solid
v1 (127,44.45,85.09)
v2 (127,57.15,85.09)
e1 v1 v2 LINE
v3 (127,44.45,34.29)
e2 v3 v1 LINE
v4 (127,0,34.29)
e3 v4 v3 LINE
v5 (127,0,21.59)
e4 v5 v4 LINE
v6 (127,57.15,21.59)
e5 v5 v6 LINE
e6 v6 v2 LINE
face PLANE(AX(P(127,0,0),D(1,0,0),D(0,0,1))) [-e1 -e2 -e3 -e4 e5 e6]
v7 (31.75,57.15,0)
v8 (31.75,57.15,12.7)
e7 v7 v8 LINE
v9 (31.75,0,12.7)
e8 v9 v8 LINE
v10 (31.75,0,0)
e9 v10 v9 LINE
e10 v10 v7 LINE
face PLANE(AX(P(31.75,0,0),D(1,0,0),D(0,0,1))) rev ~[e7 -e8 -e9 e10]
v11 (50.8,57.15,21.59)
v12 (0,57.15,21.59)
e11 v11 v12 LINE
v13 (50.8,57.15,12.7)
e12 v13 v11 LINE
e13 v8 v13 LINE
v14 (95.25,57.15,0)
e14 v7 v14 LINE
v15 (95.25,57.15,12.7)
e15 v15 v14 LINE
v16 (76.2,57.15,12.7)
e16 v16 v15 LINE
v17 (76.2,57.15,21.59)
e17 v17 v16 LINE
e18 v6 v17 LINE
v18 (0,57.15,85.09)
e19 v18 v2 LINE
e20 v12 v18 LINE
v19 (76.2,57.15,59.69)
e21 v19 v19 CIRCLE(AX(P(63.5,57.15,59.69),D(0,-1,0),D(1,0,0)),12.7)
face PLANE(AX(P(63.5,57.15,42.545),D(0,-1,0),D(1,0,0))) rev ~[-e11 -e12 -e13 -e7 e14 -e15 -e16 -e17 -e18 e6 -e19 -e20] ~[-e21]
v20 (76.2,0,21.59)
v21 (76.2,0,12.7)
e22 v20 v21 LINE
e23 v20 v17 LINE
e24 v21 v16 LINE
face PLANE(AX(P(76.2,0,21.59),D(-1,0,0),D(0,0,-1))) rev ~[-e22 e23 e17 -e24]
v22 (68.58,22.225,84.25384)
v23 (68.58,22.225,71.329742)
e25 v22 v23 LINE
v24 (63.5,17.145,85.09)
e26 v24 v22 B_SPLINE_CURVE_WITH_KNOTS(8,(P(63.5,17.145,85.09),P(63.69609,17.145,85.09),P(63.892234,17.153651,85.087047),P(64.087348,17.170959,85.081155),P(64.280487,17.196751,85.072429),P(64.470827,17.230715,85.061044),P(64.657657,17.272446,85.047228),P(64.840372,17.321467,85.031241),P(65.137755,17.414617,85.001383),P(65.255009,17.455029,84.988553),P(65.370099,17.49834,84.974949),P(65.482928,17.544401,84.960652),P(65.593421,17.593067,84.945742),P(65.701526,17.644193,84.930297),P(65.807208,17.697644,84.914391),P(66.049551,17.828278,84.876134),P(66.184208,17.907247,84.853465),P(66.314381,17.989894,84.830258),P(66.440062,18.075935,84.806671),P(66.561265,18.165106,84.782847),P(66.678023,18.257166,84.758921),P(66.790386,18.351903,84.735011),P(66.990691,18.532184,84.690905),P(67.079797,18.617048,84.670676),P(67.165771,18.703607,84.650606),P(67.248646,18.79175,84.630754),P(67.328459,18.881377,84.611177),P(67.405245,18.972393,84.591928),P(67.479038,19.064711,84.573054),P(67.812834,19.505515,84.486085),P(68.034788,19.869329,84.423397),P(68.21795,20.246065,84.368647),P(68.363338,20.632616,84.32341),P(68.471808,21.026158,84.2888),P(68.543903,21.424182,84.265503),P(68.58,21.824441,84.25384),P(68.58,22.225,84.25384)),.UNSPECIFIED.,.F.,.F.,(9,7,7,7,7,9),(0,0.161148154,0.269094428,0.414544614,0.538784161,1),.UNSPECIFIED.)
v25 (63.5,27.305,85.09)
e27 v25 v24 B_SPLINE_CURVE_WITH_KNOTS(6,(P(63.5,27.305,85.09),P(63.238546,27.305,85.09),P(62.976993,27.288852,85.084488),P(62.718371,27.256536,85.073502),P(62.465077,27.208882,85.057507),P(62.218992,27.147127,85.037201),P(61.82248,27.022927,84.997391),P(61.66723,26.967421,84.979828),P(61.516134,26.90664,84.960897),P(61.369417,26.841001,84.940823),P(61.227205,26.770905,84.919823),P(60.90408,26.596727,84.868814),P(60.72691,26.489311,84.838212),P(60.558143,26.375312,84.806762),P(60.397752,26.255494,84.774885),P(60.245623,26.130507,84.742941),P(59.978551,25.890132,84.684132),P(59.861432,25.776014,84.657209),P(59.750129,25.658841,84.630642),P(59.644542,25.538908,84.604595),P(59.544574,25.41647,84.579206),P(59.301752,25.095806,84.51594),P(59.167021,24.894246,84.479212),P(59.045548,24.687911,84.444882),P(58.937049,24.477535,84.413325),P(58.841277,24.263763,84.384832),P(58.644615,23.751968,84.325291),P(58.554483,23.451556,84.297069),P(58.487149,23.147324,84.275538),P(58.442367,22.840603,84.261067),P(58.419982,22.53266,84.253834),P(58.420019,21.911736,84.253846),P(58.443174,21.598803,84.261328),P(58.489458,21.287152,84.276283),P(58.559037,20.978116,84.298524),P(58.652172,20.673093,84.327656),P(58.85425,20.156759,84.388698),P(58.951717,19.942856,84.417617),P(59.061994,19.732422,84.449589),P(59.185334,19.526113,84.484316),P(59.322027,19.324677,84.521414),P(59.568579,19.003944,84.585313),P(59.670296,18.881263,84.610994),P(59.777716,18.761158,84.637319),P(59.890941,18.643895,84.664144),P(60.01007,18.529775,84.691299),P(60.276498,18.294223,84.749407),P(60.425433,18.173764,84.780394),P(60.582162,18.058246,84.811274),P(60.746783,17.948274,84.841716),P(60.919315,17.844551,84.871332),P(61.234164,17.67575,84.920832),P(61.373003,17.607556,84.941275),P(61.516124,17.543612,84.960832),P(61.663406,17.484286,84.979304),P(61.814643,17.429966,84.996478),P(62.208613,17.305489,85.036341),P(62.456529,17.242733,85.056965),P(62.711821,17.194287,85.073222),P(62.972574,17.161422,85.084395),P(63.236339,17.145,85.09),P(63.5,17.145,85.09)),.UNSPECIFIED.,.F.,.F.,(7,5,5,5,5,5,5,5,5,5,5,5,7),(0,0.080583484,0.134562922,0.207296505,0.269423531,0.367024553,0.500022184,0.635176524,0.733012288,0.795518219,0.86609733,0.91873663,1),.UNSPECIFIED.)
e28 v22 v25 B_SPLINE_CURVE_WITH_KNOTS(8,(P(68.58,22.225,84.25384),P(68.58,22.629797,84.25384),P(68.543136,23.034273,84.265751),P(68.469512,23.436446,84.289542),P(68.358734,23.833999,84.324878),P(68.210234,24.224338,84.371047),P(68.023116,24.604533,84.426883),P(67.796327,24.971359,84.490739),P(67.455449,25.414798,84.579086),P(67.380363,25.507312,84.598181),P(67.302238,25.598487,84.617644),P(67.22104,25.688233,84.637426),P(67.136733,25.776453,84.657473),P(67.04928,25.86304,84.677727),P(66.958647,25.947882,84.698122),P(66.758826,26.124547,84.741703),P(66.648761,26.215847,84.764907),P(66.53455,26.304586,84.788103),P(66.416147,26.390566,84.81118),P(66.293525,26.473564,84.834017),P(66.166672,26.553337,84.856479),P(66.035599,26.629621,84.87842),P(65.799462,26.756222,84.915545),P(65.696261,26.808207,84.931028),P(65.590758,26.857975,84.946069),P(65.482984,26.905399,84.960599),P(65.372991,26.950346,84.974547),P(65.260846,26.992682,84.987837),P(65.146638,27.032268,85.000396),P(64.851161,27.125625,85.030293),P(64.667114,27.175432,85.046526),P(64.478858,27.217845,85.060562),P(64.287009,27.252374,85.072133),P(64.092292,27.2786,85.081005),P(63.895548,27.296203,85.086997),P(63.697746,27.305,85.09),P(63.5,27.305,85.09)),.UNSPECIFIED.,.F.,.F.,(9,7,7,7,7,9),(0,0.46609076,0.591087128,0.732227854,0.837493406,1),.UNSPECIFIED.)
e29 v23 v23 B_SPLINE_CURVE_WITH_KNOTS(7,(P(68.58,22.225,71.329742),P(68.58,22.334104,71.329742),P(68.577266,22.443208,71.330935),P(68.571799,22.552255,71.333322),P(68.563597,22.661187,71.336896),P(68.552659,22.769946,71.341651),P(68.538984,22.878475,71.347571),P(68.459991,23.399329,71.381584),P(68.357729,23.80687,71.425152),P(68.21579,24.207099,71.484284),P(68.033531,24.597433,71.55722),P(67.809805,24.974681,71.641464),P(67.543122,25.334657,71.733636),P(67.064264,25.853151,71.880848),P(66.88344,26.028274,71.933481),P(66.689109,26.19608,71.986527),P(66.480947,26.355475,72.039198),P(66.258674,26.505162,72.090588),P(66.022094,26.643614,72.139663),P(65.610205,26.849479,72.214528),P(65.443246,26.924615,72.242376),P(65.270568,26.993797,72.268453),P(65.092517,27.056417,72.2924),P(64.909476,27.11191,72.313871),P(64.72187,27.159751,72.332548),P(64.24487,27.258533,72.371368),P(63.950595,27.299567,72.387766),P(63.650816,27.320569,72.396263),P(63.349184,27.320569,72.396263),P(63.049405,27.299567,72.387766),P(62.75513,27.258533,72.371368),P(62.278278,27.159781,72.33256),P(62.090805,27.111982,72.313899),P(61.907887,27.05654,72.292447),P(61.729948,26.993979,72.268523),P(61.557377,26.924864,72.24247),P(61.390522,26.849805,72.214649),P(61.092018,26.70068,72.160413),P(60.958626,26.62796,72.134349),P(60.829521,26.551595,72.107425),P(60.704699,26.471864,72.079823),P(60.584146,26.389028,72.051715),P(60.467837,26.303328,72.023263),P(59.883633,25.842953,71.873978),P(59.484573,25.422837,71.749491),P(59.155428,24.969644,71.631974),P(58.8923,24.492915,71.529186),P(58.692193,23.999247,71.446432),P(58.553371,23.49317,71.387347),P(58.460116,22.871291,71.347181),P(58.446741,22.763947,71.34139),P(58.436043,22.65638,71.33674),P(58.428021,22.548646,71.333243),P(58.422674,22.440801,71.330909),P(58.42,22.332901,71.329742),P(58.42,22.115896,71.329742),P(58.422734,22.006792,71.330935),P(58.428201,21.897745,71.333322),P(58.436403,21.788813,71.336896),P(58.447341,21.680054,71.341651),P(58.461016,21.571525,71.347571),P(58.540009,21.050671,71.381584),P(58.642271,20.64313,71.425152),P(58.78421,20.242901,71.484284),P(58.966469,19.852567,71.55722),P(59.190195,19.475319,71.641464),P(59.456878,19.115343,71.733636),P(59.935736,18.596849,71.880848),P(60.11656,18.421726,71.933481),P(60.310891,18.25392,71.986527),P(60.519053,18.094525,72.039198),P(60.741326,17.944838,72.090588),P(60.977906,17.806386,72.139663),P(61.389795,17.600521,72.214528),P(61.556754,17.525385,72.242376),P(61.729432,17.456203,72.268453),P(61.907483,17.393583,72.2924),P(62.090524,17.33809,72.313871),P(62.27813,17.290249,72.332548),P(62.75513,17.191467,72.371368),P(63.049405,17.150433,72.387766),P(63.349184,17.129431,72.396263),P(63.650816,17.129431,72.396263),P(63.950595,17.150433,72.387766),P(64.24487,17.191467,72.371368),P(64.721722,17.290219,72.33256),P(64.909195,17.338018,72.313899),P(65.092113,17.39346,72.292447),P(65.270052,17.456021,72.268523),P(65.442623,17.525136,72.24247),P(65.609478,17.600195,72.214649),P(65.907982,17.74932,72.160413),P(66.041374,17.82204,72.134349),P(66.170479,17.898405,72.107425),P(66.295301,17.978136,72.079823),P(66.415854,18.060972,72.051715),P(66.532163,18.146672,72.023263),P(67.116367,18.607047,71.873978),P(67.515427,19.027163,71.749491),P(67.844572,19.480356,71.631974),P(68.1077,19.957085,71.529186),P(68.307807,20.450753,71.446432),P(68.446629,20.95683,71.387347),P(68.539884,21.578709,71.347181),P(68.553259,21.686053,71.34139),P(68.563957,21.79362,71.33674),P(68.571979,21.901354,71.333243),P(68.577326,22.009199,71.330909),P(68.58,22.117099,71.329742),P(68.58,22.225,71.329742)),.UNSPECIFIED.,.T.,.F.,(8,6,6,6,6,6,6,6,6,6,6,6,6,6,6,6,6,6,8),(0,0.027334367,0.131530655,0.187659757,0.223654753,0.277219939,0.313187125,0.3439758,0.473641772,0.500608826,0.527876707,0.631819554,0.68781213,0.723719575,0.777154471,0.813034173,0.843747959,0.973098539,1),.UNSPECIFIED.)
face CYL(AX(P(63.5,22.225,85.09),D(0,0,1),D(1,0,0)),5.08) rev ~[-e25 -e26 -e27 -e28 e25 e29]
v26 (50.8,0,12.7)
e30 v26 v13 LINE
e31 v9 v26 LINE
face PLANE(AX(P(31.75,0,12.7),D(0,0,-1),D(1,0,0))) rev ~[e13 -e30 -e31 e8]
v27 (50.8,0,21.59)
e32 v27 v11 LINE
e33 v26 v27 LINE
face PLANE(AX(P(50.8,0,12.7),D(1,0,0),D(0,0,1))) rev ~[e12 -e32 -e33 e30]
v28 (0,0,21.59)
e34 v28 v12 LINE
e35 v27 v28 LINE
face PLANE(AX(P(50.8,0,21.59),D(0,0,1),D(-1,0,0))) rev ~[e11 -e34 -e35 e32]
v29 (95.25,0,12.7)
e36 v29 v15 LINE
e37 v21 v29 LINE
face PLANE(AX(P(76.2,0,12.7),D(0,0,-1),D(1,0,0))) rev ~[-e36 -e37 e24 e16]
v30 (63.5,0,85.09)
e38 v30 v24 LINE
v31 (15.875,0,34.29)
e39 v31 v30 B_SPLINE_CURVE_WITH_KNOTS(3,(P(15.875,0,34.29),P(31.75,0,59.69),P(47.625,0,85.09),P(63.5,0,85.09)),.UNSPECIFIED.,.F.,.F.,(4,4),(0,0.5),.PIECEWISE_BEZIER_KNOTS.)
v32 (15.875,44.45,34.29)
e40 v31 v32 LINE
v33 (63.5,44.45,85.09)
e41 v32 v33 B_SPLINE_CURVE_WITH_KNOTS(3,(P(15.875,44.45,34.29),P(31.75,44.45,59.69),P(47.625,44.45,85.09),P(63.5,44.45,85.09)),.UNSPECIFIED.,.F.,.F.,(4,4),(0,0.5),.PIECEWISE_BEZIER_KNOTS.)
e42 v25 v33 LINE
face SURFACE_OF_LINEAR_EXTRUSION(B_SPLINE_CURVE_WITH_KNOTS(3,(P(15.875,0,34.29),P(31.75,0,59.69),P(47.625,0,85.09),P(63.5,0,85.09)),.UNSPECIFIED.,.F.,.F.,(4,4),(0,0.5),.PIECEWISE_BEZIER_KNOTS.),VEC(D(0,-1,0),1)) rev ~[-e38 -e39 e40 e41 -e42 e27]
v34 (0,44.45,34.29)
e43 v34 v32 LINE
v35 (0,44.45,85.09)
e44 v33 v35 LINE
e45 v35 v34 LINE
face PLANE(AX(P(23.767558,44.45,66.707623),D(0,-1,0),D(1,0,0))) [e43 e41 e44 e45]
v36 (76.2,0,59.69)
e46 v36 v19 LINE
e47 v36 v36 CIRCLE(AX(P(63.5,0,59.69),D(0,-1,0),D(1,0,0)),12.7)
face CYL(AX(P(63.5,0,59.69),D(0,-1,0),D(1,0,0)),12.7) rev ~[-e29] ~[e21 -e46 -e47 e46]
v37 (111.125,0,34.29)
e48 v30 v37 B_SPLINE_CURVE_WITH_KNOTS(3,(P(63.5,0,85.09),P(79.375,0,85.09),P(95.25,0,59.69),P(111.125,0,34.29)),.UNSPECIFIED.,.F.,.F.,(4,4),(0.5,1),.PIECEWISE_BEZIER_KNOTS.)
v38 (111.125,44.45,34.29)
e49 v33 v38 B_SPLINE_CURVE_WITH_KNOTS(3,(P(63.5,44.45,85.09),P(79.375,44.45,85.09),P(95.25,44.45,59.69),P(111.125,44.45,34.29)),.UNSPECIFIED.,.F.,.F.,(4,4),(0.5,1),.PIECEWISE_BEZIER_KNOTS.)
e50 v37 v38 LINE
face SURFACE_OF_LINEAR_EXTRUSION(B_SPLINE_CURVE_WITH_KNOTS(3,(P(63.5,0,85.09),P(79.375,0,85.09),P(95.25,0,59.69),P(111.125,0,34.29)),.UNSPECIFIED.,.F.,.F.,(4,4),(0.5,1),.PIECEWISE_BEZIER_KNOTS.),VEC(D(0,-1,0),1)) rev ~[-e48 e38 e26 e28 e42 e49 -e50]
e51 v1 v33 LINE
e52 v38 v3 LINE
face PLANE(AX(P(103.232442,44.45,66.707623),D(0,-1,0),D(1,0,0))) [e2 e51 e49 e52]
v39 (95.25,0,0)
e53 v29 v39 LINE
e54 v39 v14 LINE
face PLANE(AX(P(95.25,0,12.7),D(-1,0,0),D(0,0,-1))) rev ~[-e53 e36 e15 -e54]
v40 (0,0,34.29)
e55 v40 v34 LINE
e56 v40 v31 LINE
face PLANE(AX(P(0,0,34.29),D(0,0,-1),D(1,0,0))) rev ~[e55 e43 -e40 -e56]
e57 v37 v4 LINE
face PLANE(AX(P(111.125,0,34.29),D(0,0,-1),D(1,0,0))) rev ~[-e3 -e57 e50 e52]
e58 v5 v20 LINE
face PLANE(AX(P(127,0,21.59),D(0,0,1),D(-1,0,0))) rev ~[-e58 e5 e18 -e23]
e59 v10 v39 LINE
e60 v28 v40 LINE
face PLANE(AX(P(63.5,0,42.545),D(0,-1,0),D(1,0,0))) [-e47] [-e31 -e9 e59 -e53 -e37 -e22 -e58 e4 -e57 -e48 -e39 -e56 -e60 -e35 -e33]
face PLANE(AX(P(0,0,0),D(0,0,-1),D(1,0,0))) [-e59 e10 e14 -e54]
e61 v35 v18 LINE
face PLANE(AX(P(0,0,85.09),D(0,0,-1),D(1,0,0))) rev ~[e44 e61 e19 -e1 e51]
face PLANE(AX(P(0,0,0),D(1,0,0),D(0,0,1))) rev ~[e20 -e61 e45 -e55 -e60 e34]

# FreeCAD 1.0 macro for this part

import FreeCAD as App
import Part
import Sketcher
from FreeCAD import Vector
Q = App.Units.Quantity

doc = App.newDocument("Part")
params = doc.addObject("Spreadsheet::Sheet", "Params")
for row, (alias, value) in enumerate([
    ("sketch1_width", "5 in"),
    ("sketch1_height", "3.35 in"),
    ("pad1_length", "2.25 in"),
    ("sketch2_diameter", "1 in"),
    ("sketch2_width", "2 in"),
    ("sketch2_height", "0.5 in"),
    ("sketch2_width2", "1.25 in"),
    ("sketch2_height2", "0.85 in"),
    ("pocket1_length", "2.25 in"),
    ("sketch3_diameter", "0.4 in"),
    ("pocket2_length", "1 in"),
    ("sketch4_width", "2.5 in"),
    ("pocket3_length", "1.75 in"),
], start=1):
    params.set(f"A{row}", alias)
    params.set(f"B{row}", "=" + value)
    params.setAlias(f"B{row}", alias)

body = doc.addObject("PartDesign::Body", "Body")

# Sketch on XZ plane
sketch1 = body.newObject("Sketcher::SketchObject", "Sketch")
sketch1.AttachmentSupport = (doc.getObject("XZ_Plane"), [""])
sketch1.MapMode = "FlatFace"
sketch1.addGeometry([
    Part.LineSegment(Vector(0, 85, 0), Vector(0, 0, 0)),
    Part.LineSegment(Vector(0, 0, 0), Vector(127, 0, 0)),
    Part.LineSegment(Vector(127, 0, 0), Vector(127, 85, 0)),
    Part.LineSegment(Vector(127, 85, 0), Vector(0, 85, 0)),
], False)
sketch1.addConstraint([
    Sketcher.Constraint("Coincident", 0, 2, 1, 1),
    Sketcher.Constraint("Coincident", 1, 2, 2, 1),
    Sketcher.Constraint("Coincident", 2, 2, 3, 1),
    Sketcher.Constraint("Coincident", 3, 2, 0, 1),
    Sketcher.Constraint("Vertical", 0),
    Sketcher.Constraint("Horizontal", 1),
    Sketcher.Constraint("Vertical", 2),
    Sketcher.Constraint("Horizontal", 3),
    Sketcher.Constraint("Coincident", 0, 2, -1, 1),
    Sketcher.Constraint("DistanceX", 1, 1, 1, 2, Q("5 in")),
    Sketcher.Constraint("DistanceY", 0, 2, 0, 1, Q("3.35 in")),
])
sketch1.setExpression("Constraints[9]", "Params.sketch1_width")
sketch1.setExpression("Constraints[10]", "Params.sketch1_height")
pad1 = body.newObject("PartDesign::Pad", "Pad")
pad1.Profile = sketch1
pad1.setExpression("Length", "Params.pad1_length")
pad1.Reversed = True

# Sketch on XZ plane
sketch2 = body.newObject("Sketcher::SketchObject", "Sketch001")
sketch2.AttachmentSupport = (doc.getObject("XZ_Plane"), [""])
sketch2.MapMode = "FlatFace"
sketch2.addGeometry([
    Part.LineSegment(Vector(95, 13, 0), Vector(95, 0, 0)),  # 0
    Part.LineSegment(Vector(95, 0, 0), Vector(127, 0, 0)),  # 1
    Part.LineSegment(Vector(127, 0, 0), Vector(127, 22, 0)),  # 2
    Part.LineSegment(Vector(127, 22, 0), Vector(76, 22, 0)),  # 3
    Part.LineSegment(Vector(76, 22, 0), Vector(76, 13, 0)),  # 4
    Part.LineSegment(Vector(76, 13, 0), Vector(95, 13, 0)),  # 5
    Part.LineSegment(Vector(0, 0, 0), Vector(32, 0, 0)),  # 6
    Part.LineSegment(Vector(32, 0, 0), Vector(32, 13, 0)),  # 7
    Part.LineSegment(Vector(32, 13, 0), Vector(51, 13, 0)),  # 8
    Part.LineSegment(Vector(51, 13, 0), Vector(51, 22, 0)),  # 9
    Part.LineSegment(Vector(51, 22, 0), Vector(0, 22, 0)),  # 10
    Part.LineSegment(Vector(0, 22, 0), Vector(0, 0, 0)),  # 11
    Part.Circle(Vector(64, 60, 0), Vector(0, 0, 1), 13),  # 12
], False)
sketch2.addConstraint([
    Sketcher.Constraint("Coincident", 0, 2, 1, 1),
    Sketcher.Constraint("Coincident", 1, 2, 2, 1),
    Sketcher.Constraint("Coincident", 2, 2, 3, 1),
    Sketcher.Constraint("Coincident", 3, 2, 4, 1),
    Sketcher.Constraint("Coincident", 4, 2, 5, 1),
    Sketcher.Constraint("Coincident", 5, 2, 0, 1),
    Sketcher.Constraint("Coincident", 6, 2, 7, 1),
    Sketcher.Constraint("Coincident", 7, 2, 8, 1),
    Sketcher.Constraint("Coincident", 8, 2, 9, 1),
    Sketcher.Constraint("Coincident", 9, 2, 10, 1),
    Sketcher.Constraint("Coincident", 10, 2, 11, 1),
    Sketcher.Constraint("Coincident", 11, 2, 6, 1),
    Sketcher.Constraint("Vertical", 0),
    Sketcher.Constraint("Horizontal", 1),
    Sketcher.Constraint("Vertical", 2),
    Sketcher.Constraint("Horizontal", 3),
    Sketcher.Constraint("Vertical", 4),
    Sketcher.Constraint("Horizontal", 5),
    Sketcher.Constraint("Horizontal", 6),
    Sketcher.Constraint("Vertical", 7),
    Sketcher.Constraint("Horizontal", 8),
    Sketcher.Constraint("Vertical", 9),
    Sketcher.Constraint("Horizontal", 10),
    Sketcher.Constraint("Vertical", 11),
    Sketcher.Constraint("Coincident", 11, 2, -1, 1),
    Sketcher.Constraint("PointOnObject", 0, 2, -1),
    Sketcher.Constraint("Horizontal", 5, 2, 7, 2),
    Sketcher.Constraint("Horizontal", 3, 2, 9, 2),
    Sketcher.Constraint("Equal", 1, 6),
    Sketcher.Constraint("Equal", 5, 8),
    Sketcher.Constraint("Diameter", 12, Q("1 in")),
    Sketcher.Constraint("DistanceX", 3, 2, 3, 1, Q("2 in")),
    Sketcher.Constraint("DistanceY", 0, 2, 0, 1, Q("0.5 in")),
    Sketcher.Constraint("DistanceX", -1, 1, 1, 2, Q("5 in")),
    Sketcher.Constraint("DistanceX", 1, 1, 1, 2, Q("1.25 in")),
    Sketcher.Constraint("DistanceY", 2, 1, 2, 2, Q("0.85 in")),
    Sketcher.Constraint("DistanceX", -1, 1, 12, 3, Q("2.5 in")),
    Sketcher.Constraint("DistanceY", 2, 2, 12, 3, Q("1.5 in")),
])
sketch2.setExpression("Constraints[30]", "Params.sketch2_diameter")
sketch2.setExpression("Constraints[31]", "Params.sketch2_width")
sketch2.setExpression("Constraints[32]", "Params.sketch2_height")
sketch2.setExpression("Constraints[34]", "Params.sketch2_width2")
sketch2.setExpression("Constraints[35]", "Params.sketch2_height2")
pocket1 = body.newObject("PartDesign::Pocket", "Pocket")
pocket1.Profile = sketch2
pocket1.setExpression("Length", "Params.pocket1_length")

# Sketch on XY plane
sketch3 = body.newObject("Sketcher::SketchObject", "Sketch002")
sketch3.AttachmentSupport = (doc.getObject("XY_Plane"), [""])
sketch3.MapMode = "FlatFace"
sketch3.AttachmentOffset = App.Placement(Vector(0, 0, 3.35 * 25.4), App.Rotation())
sketch3.addGeometry(Part.Circle(Vector(64, 22, 0), Vector(0, 0, 1), 5), False)
sketch3.addConstraint([
    Sketcher.Constraint("Diameter", 0, Q("0.4 in")),
    Sketcher.Constraint("DistanceX", -1, 1, 0, 3, Q("2.5 in")),
    Sketcher.Constraint("DistanceY", -1, 1, 0, 3, Q("0.875 in")),
])
sketch3.setExpression("Constraints[0]", "Params.sketch3_diameter")
pocket2 = body.newObject("PartDesign::Pocket", "Pocket001")
pocket2.Profile = sketch3
pocket2.setExpression("Length", "Params.pocket2_length")

# Sketch on XZ plane
sketch4 = body.newObject("Sketcher::SketchObject", "Sketch003")
sketch4.AttachmentSupport = (doc.getObject("XZ_Plane"), [""])
sketch4.MapMode = "FlatFace"
sketch4.addGeometry([
    Part.LineSegment(Vector(0, 85.09, 0), Vector(0, 34.29, 0)),  # 0
    Part.LineSegment(Vector(0, 34.29, 0), Vector(15.875, 34.29, 0)),  # 1
    Part.BSplineCurve([Vector(15.875, 34.29, 0), Vector(31.75, 59.69, 0), Vector(47.625, 85.09, 0), Vector(63.5, 85.09, 0)], [4, 4], [0, 0.5], False, 3, [1, 1, 1, 1], False),  # 2
    Part.LineSegment(Vector(63.5, 85.09, 0), Vector(0, 85.09, 0)),  # 3
    Part.LineSegment(Vector(111.125, 34.29, 0), Vector(127, 34.29, 0)),  # 4
    Part.LineSegment(Vector(127, 34.29, 0), Vector(127, 85.09, 0)),  # 5
    Part.LineSegment(Vector(127, 85.09, 0), Vector(63.5, 85.09, 0)),  # 6
    Part.BSplineCurve([Vector(63.5, 85.09, 0), Vector(79.375, 85.09, 0), Vector(95.25, 59.69, 0), Vector(111.125, 34.29, 0)], [4, 4], [0.5, 1], False, 3, [1, 1, 1, 1], False),  # 7
], False)
sketch4.addConstraint([
    Sketcher.Constraint("Block", 2),
    Sketcher.Constraint("Block", 7),
    Sketcher.Constraint("Coincident", 0, 2, 1, 1),
    Sketcher.Constraint("Coincident", 1, 2, 2, 1),
    Sketcher.Constraint("Coincident", 2, 2, 3, 1),
    Sketcher.Constraint("Coincident", 3, 2, 0, 1),
    Sketcher.Constraint("Coincident", 4, 2, 5, 1),
    Sketcher.Constraint("Coincident", 5, 2, 6, 1),
    Sketcher.Constraint("Coincident", 6, 2, 7, 1),
    Sketcher.Constraint("Coincident", 7, 2, 4, 1),
    Sketcher.Constraint("Vertical", 0),
    Sketcher.Constraint("Horizontal", 1),
    Sketcher.Constraint("Horizontal", 3),
    Sketcher.Constraint("Horizontal", 4),
    Sketcher.Constraint("Vertical", 5),
    Sketcher.Constraint("Horizontal", 6),
    Sketcher.Constraint("PointOnObject", 0, 2, -2),
    Sketcher.Constraint("DistanceX", 6, 2, 6, 1, Q("2.5 in")),
])
sketch4.setExpression("Constraints[17]", "Params.sketch4_width")
pocket3 = body.newObject("PartDesign::Pocket", "Pocket002")
pocket3.Profile = sketch4
pocket3.setExpression("Length", "Params.pocket3_length")

doc.recompute()
